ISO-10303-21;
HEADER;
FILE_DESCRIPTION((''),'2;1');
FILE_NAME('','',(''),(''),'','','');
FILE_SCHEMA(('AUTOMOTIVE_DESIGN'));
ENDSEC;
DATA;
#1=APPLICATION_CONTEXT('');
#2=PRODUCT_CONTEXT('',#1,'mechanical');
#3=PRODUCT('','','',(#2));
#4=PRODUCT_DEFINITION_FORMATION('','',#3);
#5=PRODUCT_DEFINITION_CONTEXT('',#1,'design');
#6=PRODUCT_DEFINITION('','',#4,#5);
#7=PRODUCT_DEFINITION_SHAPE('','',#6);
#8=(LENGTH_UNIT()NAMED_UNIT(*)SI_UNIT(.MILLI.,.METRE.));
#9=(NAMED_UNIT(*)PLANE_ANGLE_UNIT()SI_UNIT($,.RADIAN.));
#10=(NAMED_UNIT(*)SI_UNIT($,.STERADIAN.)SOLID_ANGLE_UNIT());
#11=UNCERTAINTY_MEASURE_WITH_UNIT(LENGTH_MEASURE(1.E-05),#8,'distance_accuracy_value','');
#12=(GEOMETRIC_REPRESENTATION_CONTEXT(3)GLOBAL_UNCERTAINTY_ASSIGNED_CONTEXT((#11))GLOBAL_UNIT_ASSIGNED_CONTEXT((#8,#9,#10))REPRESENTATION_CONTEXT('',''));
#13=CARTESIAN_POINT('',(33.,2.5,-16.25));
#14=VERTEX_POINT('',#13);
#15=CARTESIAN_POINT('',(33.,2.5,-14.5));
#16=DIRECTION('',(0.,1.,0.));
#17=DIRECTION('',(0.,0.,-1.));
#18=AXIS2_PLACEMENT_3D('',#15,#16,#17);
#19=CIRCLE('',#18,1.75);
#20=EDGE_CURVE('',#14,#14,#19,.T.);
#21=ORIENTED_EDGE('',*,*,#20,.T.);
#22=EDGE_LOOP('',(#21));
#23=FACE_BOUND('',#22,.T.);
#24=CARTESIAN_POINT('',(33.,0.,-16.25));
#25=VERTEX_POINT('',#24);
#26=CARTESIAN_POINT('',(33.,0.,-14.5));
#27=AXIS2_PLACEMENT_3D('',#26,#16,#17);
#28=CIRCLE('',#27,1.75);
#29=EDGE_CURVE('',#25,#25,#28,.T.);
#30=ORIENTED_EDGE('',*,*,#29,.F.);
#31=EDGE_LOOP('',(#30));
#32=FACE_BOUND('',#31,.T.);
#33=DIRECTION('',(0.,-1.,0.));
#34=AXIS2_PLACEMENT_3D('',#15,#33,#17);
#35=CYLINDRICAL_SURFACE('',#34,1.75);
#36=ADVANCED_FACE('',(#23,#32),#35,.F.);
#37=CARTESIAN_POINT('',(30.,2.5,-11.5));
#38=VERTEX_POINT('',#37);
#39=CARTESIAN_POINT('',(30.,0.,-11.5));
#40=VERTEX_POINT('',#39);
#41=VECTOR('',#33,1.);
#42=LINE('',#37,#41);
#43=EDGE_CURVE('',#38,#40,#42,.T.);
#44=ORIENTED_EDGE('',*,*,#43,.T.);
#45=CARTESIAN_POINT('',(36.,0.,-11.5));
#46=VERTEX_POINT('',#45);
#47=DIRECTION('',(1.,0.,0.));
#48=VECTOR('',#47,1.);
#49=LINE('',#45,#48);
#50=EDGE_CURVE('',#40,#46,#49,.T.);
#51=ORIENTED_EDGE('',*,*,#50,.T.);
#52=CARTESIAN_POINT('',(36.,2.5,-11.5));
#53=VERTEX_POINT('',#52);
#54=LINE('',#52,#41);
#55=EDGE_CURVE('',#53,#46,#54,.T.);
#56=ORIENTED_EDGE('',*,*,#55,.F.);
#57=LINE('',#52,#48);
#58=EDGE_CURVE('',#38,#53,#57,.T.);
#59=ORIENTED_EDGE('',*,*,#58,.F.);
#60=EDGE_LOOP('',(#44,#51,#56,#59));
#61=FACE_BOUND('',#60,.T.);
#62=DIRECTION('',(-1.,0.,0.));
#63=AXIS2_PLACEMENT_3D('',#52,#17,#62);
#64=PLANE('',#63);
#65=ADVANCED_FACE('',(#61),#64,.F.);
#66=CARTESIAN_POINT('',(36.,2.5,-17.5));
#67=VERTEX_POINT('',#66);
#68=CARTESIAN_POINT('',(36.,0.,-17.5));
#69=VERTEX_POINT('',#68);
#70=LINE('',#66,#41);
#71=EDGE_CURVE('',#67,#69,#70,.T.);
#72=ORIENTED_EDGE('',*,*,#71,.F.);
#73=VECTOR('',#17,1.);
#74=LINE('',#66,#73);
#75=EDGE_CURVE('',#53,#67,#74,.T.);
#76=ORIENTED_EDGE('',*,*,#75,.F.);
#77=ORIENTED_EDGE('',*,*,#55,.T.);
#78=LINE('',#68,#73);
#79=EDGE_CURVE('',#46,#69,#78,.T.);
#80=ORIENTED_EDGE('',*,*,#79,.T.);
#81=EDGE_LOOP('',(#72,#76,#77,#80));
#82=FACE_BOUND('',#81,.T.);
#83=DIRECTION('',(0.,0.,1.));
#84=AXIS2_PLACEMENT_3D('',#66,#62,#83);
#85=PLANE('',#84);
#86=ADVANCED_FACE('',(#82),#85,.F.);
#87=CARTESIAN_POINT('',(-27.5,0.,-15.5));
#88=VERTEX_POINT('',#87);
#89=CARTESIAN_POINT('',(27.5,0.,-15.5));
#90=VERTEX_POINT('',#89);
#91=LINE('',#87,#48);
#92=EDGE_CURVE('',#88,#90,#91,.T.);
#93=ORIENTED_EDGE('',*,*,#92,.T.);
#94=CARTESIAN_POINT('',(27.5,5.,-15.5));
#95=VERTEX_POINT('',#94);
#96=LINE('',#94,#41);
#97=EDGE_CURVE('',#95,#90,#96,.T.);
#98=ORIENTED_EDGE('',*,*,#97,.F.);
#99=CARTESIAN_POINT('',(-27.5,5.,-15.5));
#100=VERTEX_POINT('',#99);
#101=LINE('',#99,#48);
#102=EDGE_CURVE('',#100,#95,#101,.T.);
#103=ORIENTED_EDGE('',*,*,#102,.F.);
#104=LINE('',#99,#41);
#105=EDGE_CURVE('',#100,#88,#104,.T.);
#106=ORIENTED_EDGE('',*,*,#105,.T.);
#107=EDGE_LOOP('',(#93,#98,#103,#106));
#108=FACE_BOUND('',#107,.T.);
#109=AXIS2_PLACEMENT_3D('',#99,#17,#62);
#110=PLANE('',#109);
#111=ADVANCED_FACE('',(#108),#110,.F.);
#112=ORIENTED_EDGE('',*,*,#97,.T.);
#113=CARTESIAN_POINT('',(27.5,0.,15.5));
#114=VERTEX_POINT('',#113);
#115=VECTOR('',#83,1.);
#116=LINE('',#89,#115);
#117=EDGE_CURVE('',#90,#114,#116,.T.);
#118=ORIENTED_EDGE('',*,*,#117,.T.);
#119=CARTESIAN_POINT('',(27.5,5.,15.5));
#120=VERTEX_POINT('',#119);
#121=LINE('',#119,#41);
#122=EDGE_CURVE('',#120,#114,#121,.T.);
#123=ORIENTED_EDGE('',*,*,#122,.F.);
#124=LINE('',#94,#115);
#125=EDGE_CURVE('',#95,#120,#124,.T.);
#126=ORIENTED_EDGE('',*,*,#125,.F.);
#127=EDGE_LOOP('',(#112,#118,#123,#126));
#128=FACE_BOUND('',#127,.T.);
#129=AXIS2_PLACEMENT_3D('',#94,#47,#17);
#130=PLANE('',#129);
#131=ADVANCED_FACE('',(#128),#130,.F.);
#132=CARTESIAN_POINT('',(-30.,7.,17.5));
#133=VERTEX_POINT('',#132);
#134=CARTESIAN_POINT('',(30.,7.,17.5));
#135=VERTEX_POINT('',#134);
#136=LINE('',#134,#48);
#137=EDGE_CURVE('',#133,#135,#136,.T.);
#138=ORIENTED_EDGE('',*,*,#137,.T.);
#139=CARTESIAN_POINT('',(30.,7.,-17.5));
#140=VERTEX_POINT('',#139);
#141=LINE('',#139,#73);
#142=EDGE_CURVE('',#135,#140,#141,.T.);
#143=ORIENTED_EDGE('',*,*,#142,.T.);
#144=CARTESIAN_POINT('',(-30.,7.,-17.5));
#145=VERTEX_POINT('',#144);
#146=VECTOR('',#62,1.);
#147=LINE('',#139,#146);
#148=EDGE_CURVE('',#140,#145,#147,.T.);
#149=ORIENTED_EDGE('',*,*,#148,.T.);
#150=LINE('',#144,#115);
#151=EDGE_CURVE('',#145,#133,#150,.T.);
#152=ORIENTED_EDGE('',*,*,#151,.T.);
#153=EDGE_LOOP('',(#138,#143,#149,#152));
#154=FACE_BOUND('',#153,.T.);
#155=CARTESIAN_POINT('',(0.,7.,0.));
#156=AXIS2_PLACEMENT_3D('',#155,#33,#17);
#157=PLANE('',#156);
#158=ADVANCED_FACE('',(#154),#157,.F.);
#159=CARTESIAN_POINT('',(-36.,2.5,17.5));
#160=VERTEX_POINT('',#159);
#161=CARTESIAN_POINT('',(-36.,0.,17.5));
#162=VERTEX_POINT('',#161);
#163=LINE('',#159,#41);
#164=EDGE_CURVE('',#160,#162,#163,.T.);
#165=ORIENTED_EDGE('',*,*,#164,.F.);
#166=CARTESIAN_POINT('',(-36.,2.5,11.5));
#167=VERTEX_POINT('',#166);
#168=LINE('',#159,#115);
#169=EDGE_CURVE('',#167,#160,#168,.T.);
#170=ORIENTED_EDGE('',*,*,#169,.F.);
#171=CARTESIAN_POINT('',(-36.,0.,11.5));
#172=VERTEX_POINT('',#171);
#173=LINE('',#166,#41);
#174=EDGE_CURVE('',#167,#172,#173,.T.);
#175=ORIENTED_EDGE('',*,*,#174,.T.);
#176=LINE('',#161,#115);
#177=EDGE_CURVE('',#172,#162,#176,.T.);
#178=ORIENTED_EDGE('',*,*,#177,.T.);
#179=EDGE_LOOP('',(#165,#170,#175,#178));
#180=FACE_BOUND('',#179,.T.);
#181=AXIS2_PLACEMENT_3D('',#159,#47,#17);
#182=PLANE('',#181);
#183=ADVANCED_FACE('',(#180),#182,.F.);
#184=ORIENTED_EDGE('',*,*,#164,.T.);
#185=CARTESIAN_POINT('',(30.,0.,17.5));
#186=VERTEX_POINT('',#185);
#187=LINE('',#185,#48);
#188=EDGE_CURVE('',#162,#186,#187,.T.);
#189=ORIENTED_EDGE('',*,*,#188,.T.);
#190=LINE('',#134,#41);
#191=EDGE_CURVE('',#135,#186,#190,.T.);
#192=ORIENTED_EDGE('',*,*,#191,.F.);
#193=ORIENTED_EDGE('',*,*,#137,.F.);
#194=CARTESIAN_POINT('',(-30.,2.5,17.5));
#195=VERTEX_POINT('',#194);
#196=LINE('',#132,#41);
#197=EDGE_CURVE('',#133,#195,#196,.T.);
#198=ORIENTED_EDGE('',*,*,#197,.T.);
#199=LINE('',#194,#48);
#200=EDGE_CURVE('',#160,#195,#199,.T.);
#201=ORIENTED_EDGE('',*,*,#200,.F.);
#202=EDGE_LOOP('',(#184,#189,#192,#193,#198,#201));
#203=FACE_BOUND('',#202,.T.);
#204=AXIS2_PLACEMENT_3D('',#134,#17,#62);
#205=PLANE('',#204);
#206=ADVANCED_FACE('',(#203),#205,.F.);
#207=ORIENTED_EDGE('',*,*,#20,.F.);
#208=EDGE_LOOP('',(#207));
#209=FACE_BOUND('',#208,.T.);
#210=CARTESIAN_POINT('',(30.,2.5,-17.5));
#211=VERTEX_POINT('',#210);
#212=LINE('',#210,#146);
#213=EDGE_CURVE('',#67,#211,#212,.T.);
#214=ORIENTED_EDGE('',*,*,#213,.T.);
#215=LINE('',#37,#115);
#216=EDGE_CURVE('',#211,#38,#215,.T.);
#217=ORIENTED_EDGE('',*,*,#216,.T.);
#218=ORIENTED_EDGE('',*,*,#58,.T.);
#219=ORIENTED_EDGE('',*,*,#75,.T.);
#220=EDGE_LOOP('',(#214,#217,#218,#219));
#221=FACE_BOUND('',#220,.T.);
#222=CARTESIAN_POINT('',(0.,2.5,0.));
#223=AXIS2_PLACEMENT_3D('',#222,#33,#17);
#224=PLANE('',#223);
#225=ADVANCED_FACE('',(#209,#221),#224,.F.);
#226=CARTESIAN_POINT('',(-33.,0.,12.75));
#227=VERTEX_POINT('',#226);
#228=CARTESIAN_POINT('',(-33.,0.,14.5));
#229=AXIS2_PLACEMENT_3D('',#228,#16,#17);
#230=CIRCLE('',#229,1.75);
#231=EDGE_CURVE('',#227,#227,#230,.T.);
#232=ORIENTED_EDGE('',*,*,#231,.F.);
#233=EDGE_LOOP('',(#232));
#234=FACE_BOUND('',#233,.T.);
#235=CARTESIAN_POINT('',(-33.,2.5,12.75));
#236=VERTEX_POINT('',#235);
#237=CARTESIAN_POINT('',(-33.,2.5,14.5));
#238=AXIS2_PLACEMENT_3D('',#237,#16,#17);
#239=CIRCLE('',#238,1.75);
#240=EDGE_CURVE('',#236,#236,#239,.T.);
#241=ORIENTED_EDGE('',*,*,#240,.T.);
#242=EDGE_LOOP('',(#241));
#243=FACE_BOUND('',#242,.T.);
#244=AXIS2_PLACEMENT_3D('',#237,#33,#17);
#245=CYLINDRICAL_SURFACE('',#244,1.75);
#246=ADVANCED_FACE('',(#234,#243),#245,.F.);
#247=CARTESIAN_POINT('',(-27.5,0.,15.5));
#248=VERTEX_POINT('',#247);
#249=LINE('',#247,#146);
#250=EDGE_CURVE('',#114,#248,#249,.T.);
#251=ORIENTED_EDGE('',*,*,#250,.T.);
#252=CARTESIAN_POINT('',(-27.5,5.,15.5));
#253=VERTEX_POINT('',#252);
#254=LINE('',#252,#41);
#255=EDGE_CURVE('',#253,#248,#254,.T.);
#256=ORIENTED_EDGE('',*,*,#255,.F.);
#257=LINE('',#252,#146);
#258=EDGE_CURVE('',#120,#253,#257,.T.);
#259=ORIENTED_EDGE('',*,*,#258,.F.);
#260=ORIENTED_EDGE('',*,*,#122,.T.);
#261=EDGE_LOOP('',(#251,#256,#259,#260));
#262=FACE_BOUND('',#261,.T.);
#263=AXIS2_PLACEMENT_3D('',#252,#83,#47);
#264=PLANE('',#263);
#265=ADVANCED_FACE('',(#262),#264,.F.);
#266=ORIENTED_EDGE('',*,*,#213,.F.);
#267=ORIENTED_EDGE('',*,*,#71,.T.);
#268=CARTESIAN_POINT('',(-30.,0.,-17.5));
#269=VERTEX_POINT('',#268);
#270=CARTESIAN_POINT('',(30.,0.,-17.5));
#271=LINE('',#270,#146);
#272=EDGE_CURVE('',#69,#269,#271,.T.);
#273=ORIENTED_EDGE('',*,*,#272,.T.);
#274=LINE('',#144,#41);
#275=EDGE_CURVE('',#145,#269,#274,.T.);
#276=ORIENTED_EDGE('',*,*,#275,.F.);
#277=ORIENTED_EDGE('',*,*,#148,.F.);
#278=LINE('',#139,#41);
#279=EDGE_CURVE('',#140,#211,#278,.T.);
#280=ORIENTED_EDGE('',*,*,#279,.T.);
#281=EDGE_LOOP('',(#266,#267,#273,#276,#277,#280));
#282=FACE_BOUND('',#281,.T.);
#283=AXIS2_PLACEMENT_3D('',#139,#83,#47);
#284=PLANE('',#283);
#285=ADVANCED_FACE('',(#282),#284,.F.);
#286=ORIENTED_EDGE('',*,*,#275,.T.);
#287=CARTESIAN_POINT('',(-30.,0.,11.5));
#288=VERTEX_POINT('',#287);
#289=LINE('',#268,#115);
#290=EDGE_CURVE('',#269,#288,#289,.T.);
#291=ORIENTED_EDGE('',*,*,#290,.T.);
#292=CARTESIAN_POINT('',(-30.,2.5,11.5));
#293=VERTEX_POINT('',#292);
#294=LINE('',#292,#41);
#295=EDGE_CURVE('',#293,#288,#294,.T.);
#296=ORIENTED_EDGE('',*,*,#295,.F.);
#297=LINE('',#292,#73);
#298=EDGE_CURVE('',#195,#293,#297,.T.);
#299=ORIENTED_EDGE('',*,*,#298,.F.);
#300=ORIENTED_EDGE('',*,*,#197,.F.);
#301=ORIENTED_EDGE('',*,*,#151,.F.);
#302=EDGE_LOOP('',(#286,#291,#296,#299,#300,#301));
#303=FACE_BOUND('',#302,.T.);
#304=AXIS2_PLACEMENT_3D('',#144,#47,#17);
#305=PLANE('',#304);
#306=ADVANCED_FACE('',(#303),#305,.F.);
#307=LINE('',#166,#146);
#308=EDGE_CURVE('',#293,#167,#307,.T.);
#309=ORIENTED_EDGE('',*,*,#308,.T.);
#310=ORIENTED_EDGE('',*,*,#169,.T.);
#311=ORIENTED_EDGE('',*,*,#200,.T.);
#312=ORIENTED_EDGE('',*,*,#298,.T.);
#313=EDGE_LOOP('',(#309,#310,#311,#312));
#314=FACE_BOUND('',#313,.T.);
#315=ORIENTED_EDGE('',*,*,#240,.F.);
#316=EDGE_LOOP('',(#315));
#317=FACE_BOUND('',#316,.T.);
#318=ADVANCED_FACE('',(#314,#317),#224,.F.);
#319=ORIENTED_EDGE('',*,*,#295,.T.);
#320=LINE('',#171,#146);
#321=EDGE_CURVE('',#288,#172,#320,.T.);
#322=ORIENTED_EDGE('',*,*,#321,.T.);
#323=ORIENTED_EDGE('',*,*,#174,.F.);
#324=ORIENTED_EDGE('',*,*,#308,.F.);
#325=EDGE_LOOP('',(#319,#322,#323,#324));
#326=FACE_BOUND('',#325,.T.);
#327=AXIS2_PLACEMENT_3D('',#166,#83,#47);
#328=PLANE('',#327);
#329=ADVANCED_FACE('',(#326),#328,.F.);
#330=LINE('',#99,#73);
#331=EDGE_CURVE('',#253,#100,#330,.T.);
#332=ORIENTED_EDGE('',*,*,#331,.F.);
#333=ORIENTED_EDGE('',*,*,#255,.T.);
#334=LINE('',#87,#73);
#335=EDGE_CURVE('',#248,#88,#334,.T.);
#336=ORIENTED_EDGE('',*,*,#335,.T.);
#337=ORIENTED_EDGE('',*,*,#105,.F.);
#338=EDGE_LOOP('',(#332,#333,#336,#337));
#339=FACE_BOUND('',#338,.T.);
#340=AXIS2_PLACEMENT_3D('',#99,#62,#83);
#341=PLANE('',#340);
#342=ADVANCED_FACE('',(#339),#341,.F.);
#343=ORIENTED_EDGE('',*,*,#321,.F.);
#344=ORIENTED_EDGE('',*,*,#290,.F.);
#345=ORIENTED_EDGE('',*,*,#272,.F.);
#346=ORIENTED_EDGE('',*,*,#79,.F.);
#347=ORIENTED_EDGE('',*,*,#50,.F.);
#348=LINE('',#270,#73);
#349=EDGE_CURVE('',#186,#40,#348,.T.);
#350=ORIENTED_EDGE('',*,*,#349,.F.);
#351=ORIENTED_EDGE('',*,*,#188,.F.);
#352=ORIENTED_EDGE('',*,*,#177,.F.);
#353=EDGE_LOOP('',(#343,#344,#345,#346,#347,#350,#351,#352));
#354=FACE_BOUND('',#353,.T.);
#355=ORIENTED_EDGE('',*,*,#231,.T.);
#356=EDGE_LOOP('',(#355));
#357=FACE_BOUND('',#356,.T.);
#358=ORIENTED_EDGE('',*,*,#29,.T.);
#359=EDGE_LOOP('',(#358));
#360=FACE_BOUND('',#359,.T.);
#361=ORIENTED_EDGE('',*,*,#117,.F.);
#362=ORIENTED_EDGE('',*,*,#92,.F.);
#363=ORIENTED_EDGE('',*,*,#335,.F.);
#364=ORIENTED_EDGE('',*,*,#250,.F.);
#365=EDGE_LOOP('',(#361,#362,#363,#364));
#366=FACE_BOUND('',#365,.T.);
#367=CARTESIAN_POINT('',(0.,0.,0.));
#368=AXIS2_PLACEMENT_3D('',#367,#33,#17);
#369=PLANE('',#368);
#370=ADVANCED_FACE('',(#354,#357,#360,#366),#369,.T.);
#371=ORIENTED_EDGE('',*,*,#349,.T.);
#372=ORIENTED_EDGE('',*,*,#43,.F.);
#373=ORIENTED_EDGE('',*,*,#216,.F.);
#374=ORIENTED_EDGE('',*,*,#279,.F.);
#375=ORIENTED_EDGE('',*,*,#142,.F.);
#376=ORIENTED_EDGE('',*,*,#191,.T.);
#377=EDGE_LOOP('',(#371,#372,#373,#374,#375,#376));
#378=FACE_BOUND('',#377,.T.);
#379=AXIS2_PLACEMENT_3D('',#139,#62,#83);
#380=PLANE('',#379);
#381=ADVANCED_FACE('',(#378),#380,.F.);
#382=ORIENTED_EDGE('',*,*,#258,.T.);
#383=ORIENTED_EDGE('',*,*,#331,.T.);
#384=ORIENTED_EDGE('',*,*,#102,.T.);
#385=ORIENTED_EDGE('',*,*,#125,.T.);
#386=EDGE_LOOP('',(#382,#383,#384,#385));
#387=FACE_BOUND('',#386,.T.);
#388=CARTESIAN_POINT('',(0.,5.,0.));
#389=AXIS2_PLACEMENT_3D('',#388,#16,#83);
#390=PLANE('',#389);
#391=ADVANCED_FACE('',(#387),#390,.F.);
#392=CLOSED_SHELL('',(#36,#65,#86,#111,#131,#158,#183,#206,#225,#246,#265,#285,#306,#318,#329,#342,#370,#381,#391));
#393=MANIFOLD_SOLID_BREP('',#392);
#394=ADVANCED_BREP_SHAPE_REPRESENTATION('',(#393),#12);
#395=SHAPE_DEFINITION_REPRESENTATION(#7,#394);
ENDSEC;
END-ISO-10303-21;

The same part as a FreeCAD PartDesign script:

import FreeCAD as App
import Part
import Sketcher
from FreeCAD import Vector
Q = App.Units.Quantity


def add_polygon(sketch, points):
    """Adds a closed chain of lines whose ends are joined by coincident constraints."""
    first, n = sketch.GeometryCount, len(points)
    for a, b in zip(points, points[1:] + points[:1]):
        sketch.addGeometry(Part.LineSegment(App.Vector(*a, 0), App.Vector(*b, 0)), False)
    for i in range(n):
        sketch.addConstraint(Sketcher.Constraint("Coincident", first + i, 2, first + (i + 1) % n, 1))

doc = App.newDocument("Part")
params = doc.addObject("Spreadsheet::Sheet", "Params")
for row, (alias, value) in enumerate([
    ("sketch1_width", "60 mm"),
    ("sketch1_height", "35 mm"),
    ("pad1_length", "7 mm"),
    ("sketch2_diameter", "3.5 mm"),
    ("sketch2_width", "6 mm"),
    ("pad2_length", "2.5 mm"),
    ("sketch3_width", "55 mm"),
    ("sketch3_height", "31 mm"),
    ("pocket1_length", "5 mm"),
], start=1):
    params.set(f"A{row}", alias)
    params.set(f"B{row}", "=" + value)
    params.setAlias(f"B{row}", alias)

body = doc.addObject("PartDesign::Body", "Body")

# Sketch on XZ plane
sketch1 = body.newObject("Sketcher::SketchObject", "Sketch")
sketch1.AttachmentSupport = (doc.getObject("XZ_Plane"), [""])
sketch1.MapMode = "FlatFace"
add_polygon(sketch1, [(-30, -18), (-30, 18), (30, 18), (30, -18)])  # lines 0-3
sketch1.addConstraint([
    Sketcher.Constraint("Vertical", 0),
    Sketcher.Constraint("Horizontal", 1),
    Sketcher.Constraint("Vertical", 2),
    Sketcher.Constraint("Horizontal", 3),
    Sketcher.Constraint("Symmetric", 0, 2, 2, 2, -1, 1),
    Sketcher.Constraint("DistanceX", 1, 1, 1, 2, Q("60 mm")),
    Sketcher.Constraint("DistanceY", 0, 1, 0, 2, Q("35 mm")),
])
sketch1.setExpression("Constraints[9]", "Params.sketch1_width")
sketch1.setExpression("Constraints[10]", "Params.sketch1_height")
pad1 = body.newObject("PartDesign::Pad", "Pad")
pad1.Profile = sketch1
pad1.setExpression("Length", "Params.pad1_length")
pad1.Reversed = True

# Sketch on XZ plane
sketch2 = body.newObject("Sketcher::SketchObject", "Sketch001")
sketch2.AttachmentSupport = (doc.getObject("XZ_Plane"), [""])
sketch2.MapMode = "FlatFace"
add_polygon(sketch2, [(-36, 11.5), (-36, 17.5), (-30, 17.5), (-30, 11.5)])  # lines 0-3
sketch2.addGeometry(Part.Circle(Vector(-33, 14.5, 0), Vector(0, 0, 1), 1.8), False)  # 4
add_polygon(sketch2, [(30, -17.5), (30, -11.5), (36, -11.5), (36, -17.5)])  # lines 5-8
sketch2.addGeometry(Part.Circle(Vector(33, -14.5, 0), Vector(0, 0, 1), 1.8), False)  # 9
sketch2.addConstraint([
    Sketcher.Constraint("Vertical", 0),
    Sketcher.Constraint("Horizontal", 1),
    Sketcher.Constraint("Vertical", 2),
    Sketcher.Constraint("Horizontal", 3),
    Sketcher.Constraint("Vertical", 5),
    Sketcher.Constraint("Horizontal", 6),
    Sketcher.Constraint("Vertical", 7),
    Sketcher.Constraint("Horizontal", 8),
    Sketcher.Constraint("Equal", 4, 9),
    Sketcher.Constraint("Symmetric", 4, 3, 9, 3, -1, 1),
    Sketcher.Constraint("Symmetric", 2, 2, 5, 2, -1, 1),
    Sketcher.Constraint("Symmetric", 0, 2, 7, 2, -1, 1),
    Sketcher.Constraint("Equal", 8, 0),
    Sketcher.Constraint("Diameter", 4, Q("3.5 mm")),
    Sketcher.Constraint("DistanceX", 1, 1, 1, 2, Q("6 mm")),
    Sketcher.Constraint("DistanceX", 4, 3, -1, 1, Q("33 mm")),
    Sketcher.Constraint("DistanceX", 0, 2, -1, 1, Q("36 mm")),
    Sketcher.Constraint("DistanceY", 9, 3, 4, 3, Q("29 mm")),
    Sketcher.Constraint("DistanceY", 4, 3, 0, 2, Q("3 mm")),
])
sketch2.setExpression("Constraints[21]", "Params.sketch2_diameter")
sketch2.setExpression("Constraints[22]", "Params.sketch2_width")
pad2 = body.newObject("PartDesign::Pad", "Pad001")
pad2.Profile = sketch2
pad2.setExpression("Length", "Params.pad2_length")
pad2.Reversed = True

# Sketch on XZ plane
sketch3 = body.newObject("Sketcher::SketchObject", "Sketch002")
sketch3.AttachmentSupport = (doc.getObject("XZ_Plane"), [""])
sketch3.MapMode = "FlatFace"
add_polygon(sketch3, [(28, -16), (28, 16), (-28, 16), (-28, -16)])  # lines 0-3
sketch3.addConstraint([
    Sketcher.Constraint("Vertical", 0),
    Sketcher.Constraint("Horizontal", 1),
    Sketcher.Constraint("Vertical", 2),
    Sketcher.Constraint("Horizontal", 3),
    Sketcher.Constraint("Symmetric", 0, 2, 2, 2, -1, 1),
    Sketcher.Constraint("DistanceX", 1, 2, 1, 1, Q("55 mm")),
    Sketcher.Constraint("DistanceY", 0, 1, 0, 2, Q("31 mm")),
])
sketch3.setExpression("Constraints[9]", "Params.sketch3_width")
sketch3.setExpression("Constraints[10]", "Params.sketch3_height")
pocket1 = body.newObject("PartDesign::Pocket", "Pocket")
pocket1.Profile = sketch3
pocket1.setExpression("Length", "Params.pocket1_length")

doc.recompute()
